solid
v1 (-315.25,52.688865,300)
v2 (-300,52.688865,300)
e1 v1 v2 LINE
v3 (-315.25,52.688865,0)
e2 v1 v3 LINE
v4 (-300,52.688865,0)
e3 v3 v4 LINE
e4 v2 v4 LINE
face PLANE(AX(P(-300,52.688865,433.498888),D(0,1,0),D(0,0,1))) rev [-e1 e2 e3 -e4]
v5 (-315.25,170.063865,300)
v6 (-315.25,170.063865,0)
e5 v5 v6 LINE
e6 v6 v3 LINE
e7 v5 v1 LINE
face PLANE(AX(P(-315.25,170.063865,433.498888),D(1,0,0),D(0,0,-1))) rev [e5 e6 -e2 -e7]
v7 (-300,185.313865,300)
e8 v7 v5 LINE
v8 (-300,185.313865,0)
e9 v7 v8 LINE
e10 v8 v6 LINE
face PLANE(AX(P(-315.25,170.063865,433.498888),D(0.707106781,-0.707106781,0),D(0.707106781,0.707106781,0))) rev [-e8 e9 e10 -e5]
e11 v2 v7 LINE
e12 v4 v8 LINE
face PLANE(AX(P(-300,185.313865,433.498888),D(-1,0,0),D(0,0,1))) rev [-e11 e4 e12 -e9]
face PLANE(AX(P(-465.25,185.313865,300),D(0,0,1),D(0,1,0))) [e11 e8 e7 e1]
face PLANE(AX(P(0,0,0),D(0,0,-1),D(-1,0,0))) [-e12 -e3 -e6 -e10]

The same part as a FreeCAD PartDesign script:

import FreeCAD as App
import Part
import Sketcher
Q = App.Units.Quantity

doc = App.newDocument("Part")
body = doc.addObject("PartDesign::Body", "Body")

# Sketch on XY plane
sketch1 = body.newObject("Sketcher::SketchObject", "Sketch")
sketch1.AttachmentSupport = (doc.getObject("XY_Plane"), [""])
sketch1.MapMode = "FlatFace"
sketch1.addGeometry([
    Part.LineSegment(App.Vector(-300, 53, 0), App.Vector(-300, 185, 0)),
    Part.LineSegment(App.Vector(-300, 185, 0), App.Vector(-315, 170, 0)),
    Part.LineSegment(App.Vector(-315, 170, 0), App.Vector(-315, 53, 0)),
    Part.LineSegment(App.Vector(-315, 53, 0), App.Vector(-300, 53, 0)),
], False)
sketch1.addConstraint([
    Sketcher.Constraint("Coincident", 0, 2, 1, 1),
    Sketcher.Constraint("Coincident", 1, 2, 2, 1),
    Sketcher.Constraint("Coincident", 2, 2, 3, 1),
    Sketcher.Constraint("Coincident", 3, 2, 0, 1),
    Sketcher.Constraint("Vertical", 0),
    Sketcher.Constraint("Vertical", 2),
    Sketcher.Constraint("Horizontal", 3),
    Sketcher.Constraint("Angle", 1, Q("-135 deg")),
    Sketcher.Constraint("DistanceX", 0, 2, -1, 1, 300.0),
    Sketcher.Constraint("DistanceX", 3, 1, 3, 2, 15.25),
    Sketcher.Constraint("DistanceY", 0, 1, 0, 2, 132.625),
    Sketcher.Constraint("DistanceY", -1, 1, 0, 2, 185.313865),
])
pad1 = body.newObject("PartDesign::Pad", "Pad")
pad1.Profile = sketch1
pad1.Length = 300

doc.recompute()
